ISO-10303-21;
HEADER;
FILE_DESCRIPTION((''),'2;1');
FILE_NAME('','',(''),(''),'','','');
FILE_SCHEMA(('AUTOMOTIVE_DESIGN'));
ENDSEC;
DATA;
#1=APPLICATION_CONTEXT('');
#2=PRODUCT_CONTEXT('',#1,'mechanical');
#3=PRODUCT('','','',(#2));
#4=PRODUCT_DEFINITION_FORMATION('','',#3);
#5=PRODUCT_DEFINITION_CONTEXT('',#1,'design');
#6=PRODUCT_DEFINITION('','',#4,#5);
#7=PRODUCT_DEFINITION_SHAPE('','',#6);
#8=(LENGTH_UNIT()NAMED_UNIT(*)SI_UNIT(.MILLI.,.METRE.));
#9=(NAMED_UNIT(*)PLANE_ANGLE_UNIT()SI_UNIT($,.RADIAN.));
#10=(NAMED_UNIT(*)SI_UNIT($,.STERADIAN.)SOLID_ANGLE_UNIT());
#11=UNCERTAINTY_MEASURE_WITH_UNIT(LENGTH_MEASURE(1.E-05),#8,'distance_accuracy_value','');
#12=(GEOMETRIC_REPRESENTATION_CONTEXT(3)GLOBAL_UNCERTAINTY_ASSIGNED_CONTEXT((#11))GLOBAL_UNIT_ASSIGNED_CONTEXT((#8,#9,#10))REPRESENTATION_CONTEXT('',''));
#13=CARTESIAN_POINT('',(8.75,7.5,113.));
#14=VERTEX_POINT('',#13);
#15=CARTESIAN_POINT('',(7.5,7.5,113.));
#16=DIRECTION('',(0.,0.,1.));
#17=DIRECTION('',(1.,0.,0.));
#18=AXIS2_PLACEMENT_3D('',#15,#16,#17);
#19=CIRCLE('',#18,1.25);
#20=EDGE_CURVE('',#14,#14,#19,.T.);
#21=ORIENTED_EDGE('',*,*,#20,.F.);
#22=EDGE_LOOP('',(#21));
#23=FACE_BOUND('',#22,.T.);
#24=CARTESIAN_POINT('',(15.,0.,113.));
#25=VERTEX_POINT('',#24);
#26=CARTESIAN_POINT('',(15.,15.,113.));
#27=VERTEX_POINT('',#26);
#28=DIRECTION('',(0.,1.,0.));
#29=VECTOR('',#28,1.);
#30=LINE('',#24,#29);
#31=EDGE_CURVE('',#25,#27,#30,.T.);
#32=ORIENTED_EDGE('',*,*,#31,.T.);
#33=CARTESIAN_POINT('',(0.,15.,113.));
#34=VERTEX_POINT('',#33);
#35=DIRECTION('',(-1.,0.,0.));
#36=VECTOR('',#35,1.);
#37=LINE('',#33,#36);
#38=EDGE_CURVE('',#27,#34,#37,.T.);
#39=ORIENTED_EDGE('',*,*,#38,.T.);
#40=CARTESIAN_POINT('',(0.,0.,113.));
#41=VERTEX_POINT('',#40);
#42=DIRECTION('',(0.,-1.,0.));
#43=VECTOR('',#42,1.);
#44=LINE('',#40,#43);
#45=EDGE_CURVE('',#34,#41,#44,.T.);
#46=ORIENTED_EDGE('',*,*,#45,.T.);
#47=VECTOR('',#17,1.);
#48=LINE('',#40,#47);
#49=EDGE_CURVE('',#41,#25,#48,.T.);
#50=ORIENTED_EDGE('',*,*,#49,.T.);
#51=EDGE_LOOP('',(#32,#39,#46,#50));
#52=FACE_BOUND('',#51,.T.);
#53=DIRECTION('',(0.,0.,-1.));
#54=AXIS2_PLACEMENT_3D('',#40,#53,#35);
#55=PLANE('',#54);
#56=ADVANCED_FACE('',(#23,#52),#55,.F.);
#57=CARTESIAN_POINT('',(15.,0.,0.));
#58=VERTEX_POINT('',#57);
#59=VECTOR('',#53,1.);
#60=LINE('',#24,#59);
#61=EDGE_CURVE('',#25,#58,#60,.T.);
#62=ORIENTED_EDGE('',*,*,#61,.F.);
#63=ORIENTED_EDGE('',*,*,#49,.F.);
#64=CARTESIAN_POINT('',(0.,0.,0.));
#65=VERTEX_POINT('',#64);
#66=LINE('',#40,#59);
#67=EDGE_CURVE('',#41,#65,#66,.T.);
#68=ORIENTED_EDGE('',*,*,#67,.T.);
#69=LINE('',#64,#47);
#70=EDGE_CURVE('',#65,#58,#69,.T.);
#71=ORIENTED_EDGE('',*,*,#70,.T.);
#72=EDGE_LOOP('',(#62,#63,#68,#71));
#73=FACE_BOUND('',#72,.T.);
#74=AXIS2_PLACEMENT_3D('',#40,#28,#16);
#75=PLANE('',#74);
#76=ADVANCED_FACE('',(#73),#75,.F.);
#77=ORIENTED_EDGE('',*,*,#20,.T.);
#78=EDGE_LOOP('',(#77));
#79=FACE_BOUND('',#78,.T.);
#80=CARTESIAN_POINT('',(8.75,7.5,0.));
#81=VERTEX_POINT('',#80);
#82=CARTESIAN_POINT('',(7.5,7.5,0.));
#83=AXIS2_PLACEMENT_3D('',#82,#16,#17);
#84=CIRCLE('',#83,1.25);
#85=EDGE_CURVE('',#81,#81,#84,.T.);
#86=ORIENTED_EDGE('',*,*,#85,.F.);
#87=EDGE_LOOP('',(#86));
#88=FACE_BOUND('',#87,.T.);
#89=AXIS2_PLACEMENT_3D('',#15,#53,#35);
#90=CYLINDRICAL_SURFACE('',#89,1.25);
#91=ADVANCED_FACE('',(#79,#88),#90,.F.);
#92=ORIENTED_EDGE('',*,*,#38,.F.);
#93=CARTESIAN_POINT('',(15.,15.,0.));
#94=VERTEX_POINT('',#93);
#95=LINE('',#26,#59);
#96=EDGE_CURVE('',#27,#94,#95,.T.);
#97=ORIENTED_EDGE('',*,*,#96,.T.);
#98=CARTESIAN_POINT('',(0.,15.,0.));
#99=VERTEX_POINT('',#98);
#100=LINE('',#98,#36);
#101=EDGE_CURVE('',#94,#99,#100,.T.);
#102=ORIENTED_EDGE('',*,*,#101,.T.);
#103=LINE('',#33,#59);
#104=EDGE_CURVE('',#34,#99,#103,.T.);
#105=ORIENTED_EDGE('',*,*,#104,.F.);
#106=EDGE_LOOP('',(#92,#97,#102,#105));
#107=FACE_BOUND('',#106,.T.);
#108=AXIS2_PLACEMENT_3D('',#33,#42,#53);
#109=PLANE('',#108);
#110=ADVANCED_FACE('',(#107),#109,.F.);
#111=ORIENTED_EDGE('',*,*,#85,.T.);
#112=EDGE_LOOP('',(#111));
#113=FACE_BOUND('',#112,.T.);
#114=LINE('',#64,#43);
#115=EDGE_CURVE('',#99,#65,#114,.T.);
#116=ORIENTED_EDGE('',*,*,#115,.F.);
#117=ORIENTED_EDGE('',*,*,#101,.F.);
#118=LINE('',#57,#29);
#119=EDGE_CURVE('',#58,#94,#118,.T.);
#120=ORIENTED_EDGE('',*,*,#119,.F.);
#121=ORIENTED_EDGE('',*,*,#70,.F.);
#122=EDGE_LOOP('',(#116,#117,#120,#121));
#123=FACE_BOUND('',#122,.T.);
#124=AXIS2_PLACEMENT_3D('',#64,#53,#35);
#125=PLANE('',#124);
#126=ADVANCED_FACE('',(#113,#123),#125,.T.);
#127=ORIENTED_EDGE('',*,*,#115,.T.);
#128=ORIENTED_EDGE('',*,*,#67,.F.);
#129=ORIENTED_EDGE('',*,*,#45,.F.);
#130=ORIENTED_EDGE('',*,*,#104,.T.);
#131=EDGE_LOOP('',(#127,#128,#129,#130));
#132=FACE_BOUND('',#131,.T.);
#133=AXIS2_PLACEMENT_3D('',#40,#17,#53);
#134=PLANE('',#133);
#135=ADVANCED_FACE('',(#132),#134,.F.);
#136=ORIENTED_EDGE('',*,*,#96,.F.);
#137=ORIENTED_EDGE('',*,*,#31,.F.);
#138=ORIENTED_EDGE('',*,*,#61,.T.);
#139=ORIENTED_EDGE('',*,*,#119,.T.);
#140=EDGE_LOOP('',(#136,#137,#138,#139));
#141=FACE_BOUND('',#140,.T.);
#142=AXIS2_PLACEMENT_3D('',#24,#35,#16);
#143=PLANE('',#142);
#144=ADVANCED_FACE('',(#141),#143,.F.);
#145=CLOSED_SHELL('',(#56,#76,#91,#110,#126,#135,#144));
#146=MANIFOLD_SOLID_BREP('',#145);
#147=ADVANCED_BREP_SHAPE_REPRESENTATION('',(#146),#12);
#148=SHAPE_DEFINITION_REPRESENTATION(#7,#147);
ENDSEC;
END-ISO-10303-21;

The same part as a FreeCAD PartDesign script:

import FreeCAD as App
import Part
import Sketcher
from FreeCAD import Vector

doc = App.newDocument("Part")
body = doc.addObject("PartDesign::Body", "Body")

# Sketch on XY plane
sketch1 = body.newObject("Sketcher::SketchObject", "Sketch")
sketch1.AttachmentSupport = (doc.getObject("XY_Plane"), [""])
sketch1.MapMode = "FlatFace"
sketch1.addGeometry([
    Part.LineSegment(Vector(0, 15, 0), Vector(0, 0, 0)),  # 0
    Part.LineSegment(Vector(0, 0, 0), Vector(15, 0, 0)),  # 1
    Part.LineSegment(Vector(15, 0, 0), Vector(15, 15, 0)),  # 2
    Part.LineSegment(Vector(15, 15, 0), Vector(0, 15, 0)),  # 3
    Part.Circle(Vector(7.5, 7.5, 0), Vector(0, 0, 1), 1.2),  # 4
], False)
sketch1.addConstraint([
    Sketcher.Constraint("Coincident", 0, 2, 1, 1),
    Sketcher.Constraint("Coincident", 1, 2, 2, 1),
    Sketcher.Constraint("Coincident", 2, 2, 3, 1),
    Sketcher.Constraint("Coincident", 3, 2, 0, 1),
    Sketcher.Constraint("Vertical", 0),
    Sketcher.Constraint("Horizontal", 1),
    Sketcher.Constraint("Vertical", 2),
    Sketcher.Constraint("Horizontal", 3),
    Sketcher.Constraint("Coincident", 0, 2, -1, 1),
    Sketcher.Constraint("Equal", 3, 0),
    Sketcher.Constraint("Diameter", 4, 2.5),
    Sketcher.Constraint("DistanceX", 1, 1, 1, 2, 15.0),
    Sketcher.Constraint("DistanceX", -1, 1, 4, 3, 7.5),
    Sketcher.Constraint("DistanceY", -1, 1, 4, 3, 7.5),
])
pad1 = body.newObject("PartDesign::Pad", "Pad")
pad1.Profile = sketch1
pad1.Length = 113

doc.recompute()
